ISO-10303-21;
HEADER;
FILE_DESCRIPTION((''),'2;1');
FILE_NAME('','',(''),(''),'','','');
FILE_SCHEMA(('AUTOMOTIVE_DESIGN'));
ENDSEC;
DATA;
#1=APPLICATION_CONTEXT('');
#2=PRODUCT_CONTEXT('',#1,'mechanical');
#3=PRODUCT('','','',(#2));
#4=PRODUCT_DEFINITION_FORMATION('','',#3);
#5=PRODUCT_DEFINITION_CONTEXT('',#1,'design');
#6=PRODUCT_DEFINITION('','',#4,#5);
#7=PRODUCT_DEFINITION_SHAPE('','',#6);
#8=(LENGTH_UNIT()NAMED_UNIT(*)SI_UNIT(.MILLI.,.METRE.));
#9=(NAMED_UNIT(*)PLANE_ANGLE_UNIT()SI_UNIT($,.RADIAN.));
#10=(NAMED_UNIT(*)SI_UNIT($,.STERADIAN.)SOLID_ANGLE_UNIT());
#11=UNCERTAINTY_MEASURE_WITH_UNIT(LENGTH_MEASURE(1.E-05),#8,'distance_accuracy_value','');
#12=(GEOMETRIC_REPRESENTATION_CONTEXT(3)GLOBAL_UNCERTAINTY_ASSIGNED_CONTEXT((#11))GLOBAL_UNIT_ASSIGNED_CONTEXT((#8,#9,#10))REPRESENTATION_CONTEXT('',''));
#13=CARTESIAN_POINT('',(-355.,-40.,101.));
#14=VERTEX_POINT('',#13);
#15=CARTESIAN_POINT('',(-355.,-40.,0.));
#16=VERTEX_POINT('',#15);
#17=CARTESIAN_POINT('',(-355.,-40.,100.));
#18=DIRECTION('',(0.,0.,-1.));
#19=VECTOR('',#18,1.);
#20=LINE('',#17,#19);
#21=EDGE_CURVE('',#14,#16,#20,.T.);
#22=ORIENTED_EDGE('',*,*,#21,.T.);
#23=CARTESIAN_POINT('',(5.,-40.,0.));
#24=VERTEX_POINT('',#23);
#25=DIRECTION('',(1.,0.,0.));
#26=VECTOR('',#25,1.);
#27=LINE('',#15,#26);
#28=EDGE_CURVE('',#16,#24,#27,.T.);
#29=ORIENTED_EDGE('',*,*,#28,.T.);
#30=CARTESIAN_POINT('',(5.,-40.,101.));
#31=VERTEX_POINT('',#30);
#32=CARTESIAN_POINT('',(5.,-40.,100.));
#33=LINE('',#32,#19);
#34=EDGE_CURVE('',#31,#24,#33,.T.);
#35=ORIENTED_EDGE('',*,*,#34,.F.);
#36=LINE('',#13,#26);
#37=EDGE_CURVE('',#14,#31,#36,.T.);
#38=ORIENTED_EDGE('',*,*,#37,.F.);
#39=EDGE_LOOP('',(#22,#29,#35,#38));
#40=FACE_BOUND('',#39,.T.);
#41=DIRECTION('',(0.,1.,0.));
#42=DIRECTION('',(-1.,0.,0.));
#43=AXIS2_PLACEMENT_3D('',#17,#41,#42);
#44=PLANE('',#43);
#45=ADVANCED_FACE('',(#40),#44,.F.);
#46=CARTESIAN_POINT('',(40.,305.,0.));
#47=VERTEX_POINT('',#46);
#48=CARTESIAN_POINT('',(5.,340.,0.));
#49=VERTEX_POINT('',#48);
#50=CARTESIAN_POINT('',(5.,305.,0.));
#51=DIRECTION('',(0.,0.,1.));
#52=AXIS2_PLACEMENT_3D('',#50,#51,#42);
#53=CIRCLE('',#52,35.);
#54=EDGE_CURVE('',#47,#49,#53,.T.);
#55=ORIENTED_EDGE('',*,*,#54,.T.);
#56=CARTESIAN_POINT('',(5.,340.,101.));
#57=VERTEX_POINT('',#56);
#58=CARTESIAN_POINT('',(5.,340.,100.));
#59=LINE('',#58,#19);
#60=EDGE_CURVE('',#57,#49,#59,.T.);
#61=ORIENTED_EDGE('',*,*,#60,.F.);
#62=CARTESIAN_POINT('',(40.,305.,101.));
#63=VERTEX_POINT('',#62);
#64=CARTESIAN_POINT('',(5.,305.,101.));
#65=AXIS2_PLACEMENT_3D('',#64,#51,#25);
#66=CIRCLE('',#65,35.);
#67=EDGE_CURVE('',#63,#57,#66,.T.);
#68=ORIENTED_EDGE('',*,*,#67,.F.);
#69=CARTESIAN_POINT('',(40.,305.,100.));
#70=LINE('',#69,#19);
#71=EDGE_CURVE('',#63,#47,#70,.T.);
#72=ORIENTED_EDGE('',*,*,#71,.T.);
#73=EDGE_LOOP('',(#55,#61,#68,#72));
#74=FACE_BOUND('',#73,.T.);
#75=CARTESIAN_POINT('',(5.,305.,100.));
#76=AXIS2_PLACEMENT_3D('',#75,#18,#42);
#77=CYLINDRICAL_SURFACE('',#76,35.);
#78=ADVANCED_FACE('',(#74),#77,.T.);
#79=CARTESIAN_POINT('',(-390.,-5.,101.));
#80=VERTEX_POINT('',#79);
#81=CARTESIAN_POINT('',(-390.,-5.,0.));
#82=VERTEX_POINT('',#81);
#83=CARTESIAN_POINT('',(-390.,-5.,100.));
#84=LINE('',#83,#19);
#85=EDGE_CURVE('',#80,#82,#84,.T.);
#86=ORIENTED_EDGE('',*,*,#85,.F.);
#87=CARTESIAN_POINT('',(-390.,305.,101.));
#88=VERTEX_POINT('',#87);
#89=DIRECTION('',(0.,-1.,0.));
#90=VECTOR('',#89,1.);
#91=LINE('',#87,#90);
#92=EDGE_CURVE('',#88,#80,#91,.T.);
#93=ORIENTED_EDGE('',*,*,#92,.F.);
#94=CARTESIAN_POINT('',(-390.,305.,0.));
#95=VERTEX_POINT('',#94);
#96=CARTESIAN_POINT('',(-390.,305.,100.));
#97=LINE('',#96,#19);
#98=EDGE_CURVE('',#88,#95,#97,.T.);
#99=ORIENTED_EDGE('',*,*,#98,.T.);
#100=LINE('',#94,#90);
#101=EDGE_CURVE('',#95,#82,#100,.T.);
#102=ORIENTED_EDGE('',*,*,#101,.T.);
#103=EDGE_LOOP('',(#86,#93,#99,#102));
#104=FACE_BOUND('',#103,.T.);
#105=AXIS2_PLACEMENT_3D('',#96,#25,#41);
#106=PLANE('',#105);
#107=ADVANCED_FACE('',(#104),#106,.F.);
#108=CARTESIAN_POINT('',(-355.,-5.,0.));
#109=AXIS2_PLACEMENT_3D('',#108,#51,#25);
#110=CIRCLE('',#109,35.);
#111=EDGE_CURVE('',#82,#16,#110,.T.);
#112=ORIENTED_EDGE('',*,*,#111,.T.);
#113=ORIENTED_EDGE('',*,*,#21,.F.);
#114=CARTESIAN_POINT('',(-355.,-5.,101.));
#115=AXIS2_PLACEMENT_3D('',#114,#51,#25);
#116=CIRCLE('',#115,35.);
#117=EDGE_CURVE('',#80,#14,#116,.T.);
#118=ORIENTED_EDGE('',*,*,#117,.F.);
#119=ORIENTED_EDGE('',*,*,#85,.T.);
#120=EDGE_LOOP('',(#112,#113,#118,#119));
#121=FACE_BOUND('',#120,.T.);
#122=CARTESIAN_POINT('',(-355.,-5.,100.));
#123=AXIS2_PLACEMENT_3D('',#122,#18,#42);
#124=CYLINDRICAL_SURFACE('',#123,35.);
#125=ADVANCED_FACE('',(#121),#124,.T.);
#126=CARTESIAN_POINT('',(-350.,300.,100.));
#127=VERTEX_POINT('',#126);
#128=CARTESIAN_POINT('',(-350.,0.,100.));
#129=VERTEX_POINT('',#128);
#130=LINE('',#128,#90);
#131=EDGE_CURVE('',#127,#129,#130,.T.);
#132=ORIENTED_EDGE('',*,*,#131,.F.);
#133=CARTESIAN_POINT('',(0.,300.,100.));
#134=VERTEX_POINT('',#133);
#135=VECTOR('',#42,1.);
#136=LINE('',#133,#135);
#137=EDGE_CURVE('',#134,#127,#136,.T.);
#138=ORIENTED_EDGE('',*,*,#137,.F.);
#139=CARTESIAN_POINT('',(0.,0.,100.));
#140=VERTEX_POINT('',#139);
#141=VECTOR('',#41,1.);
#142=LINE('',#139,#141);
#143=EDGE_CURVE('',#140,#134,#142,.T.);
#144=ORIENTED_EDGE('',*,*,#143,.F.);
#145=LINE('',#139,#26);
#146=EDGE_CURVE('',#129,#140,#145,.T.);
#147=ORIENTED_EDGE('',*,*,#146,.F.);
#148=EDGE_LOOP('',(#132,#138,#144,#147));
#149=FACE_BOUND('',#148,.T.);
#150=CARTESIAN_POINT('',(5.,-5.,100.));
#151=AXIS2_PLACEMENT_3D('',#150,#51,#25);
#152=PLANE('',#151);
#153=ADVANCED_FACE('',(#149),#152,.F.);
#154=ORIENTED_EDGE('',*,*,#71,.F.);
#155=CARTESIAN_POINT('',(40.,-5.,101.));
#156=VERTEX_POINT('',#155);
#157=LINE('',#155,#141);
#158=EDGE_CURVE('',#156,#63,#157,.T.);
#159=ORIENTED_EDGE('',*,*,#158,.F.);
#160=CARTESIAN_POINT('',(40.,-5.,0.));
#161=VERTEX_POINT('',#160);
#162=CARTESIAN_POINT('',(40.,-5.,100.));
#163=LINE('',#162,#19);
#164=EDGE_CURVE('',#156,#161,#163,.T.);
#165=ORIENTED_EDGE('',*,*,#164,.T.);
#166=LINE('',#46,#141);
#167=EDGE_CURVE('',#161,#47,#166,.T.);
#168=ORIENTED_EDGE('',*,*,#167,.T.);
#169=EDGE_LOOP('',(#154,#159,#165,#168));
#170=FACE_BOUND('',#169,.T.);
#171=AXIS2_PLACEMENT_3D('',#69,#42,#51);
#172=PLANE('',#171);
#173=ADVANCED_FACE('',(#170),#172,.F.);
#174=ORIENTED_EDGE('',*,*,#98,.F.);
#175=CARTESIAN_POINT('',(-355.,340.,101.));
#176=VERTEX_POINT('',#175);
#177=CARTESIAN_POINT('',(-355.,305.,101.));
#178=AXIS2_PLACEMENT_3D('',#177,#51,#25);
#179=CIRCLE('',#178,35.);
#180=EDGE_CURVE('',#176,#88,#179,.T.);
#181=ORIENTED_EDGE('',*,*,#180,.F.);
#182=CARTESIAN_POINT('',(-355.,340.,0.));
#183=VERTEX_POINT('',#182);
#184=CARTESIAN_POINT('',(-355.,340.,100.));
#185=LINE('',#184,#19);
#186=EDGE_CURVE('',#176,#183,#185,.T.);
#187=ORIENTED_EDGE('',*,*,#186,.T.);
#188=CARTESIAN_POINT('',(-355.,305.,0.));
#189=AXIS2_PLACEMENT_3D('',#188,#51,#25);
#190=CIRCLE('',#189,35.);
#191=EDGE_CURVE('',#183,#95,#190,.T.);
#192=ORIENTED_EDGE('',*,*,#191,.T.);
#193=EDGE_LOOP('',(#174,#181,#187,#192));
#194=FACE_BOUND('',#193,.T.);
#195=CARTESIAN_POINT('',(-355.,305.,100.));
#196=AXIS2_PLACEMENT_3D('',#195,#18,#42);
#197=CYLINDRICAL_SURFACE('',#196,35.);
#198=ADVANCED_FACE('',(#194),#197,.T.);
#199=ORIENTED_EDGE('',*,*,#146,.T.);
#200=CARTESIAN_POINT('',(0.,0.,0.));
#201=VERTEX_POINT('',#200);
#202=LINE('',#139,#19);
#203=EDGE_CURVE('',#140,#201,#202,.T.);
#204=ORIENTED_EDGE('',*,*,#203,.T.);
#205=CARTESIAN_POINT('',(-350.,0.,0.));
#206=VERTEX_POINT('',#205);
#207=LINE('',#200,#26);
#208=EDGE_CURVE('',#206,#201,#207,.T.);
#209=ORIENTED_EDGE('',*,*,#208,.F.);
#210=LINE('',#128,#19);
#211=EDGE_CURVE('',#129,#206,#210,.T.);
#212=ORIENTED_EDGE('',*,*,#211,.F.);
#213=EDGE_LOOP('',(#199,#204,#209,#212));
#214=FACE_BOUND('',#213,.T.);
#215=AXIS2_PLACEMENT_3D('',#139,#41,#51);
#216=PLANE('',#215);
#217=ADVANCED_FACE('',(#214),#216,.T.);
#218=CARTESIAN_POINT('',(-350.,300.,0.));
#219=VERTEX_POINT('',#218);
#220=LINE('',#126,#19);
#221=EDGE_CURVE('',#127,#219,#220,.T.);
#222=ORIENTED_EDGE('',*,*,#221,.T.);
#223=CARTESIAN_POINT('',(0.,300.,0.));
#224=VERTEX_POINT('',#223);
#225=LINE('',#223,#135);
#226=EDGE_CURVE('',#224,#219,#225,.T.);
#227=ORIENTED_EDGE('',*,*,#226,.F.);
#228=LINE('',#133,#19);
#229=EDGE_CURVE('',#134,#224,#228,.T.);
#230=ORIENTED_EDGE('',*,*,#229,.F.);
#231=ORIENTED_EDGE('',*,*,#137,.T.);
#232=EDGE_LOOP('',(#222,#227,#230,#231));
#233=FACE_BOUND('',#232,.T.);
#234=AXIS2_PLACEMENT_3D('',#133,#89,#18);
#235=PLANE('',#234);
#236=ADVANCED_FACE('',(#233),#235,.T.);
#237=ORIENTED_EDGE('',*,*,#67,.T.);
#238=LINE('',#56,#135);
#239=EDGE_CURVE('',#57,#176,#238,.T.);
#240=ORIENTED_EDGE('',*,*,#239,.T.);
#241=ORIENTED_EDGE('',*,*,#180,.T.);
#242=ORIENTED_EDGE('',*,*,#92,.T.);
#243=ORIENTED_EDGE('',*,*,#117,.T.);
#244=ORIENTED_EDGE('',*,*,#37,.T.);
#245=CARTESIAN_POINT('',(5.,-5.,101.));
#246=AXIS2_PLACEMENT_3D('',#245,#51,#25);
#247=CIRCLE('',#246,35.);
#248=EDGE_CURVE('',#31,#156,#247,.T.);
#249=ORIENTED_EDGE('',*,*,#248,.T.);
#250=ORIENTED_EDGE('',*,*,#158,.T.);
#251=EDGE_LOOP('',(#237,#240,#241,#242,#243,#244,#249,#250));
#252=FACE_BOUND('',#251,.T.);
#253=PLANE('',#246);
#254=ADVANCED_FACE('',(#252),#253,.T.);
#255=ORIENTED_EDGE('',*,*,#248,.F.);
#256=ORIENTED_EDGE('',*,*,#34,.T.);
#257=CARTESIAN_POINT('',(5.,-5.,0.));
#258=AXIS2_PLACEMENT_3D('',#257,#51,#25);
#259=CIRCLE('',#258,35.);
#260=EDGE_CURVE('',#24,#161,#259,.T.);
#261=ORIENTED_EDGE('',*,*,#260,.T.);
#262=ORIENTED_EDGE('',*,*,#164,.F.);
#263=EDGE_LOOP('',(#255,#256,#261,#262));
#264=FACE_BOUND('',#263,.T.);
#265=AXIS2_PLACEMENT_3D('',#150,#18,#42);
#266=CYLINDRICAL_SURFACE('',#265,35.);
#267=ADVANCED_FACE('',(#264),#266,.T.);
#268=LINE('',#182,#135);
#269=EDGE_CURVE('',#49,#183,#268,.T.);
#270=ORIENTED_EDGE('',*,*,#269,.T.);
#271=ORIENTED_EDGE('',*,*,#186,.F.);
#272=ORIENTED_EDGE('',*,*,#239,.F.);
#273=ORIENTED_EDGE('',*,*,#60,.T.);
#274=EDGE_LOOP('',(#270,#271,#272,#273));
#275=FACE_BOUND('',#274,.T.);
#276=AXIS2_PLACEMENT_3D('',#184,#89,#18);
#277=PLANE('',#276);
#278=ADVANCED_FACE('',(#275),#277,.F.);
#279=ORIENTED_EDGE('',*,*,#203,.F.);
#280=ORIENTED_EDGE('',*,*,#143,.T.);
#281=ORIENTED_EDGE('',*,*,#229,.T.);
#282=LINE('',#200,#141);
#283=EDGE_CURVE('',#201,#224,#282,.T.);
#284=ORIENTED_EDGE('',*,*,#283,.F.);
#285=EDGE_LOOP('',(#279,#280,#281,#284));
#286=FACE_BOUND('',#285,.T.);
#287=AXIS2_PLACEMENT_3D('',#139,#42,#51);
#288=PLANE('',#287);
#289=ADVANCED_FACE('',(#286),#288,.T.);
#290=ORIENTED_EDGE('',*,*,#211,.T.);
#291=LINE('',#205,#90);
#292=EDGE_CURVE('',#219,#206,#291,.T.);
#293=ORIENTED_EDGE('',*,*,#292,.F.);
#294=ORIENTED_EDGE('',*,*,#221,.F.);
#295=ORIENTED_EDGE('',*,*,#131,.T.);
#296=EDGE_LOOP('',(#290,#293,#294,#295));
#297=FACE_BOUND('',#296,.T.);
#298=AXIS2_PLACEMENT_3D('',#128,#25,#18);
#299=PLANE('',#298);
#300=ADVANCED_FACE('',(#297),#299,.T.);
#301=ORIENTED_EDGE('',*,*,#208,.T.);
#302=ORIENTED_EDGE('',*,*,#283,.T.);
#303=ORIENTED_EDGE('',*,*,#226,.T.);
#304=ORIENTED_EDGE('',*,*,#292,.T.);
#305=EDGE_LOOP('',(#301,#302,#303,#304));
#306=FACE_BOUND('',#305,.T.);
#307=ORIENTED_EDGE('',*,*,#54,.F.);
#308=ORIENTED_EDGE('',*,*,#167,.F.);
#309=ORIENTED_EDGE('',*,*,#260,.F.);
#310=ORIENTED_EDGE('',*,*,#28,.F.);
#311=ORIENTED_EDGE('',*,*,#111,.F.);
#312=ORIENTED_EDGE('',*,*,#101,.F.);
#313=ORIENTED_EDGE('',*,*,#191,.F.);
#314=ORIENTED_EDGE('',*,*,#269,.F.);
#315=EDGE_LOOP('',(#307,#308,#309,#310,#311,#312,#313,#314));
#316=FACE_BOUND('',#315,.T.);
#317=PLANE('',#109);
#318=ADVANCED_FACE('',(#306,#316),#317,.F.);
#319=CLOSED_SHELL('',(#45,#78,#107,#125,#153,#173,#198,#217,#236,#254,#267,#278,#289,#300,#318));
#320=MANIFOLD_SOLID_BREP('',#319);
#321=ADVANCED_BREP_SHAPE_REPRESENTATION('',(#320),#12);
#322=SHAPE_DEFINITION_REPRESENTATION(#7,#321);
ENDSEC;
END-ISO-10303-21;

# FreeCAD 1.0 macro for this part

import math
import FreeCAD as App
import Part
import Sketcher

V = App.Vector
Q = App.Units.Quantity


def add_polygon(sketch, points):
    """Adds a closed chain of lines whose ends are joined by coincident constraints."""
    first, n = sketch.GeometryCount, len(points)
    for a, b in zip(points, points[1:] + points[:1]):
        sketch.addGeometry(Part.LineSegment(App.Vector(*a, 0), App.Vector(*b, 0)), False)
    for i in range(n):
        sketch.addConstraint(Sketcher.Constraint("Coincident", first + i, 2, first + (i + 1) % n, 1))

doc = App.newDocument("Part")
params = doc.addObject("Spreadsheet::Sheet", "Params")
for row, (alias, value) in enumerate([
    ("sketch1_radius", "35 mm"),
    ("sketch1_width", "360 mm"),
    ("sketch1_width2", "350 mm"),
    ("sketch1_height", "310 mm"),
    ("sketch1_height2", "300 mm"),
    ("pad1_length", "100 mm"),
    ("sketch2_radius", "35 mm"),
    ("sketch2_width", "360 mm"),
    ("sketch2_height", "310 mm"),
    ("pad2_length", "1 mm"),
], start=1):
    params.set(f"A{row}", alias)
    params.set(f"B{row}", "=" + value)
    params.setAlias(f"B{row}", alias)

body = doc.addObject("PartDesign::Body", "Body")

sketch1 = body.newObject("Sketcher::SketchObject", "Sketch")
sketch1.AttachmentSupport = (doc.getObject("XY_Plane"), [""])
sketch1.MapMode = "FlatFace"
sketch1.addGeometry(Part.LineSegment(V(5, 340, 0), V(-355, 340, 0)), False)
sketch1.addGeometry(Part.ArcOfCircle(Part.Circle(V(-355, 305, 0), V(0, 0, 1), 35), math.radians(90), math.radians(180)), False)
sketch1.addGeometry(Part.LineSegment(V(-390, 305, 0), V(-390, -5, 0)), False)
sketch1.addGeometry(Part.ArcOfCircle(Part.Circle(V(-355, -5, 0), V(0, 0, 1), 35), math.radians(180), math.radians(270)), False)
sketch1.addGeometry(Part.LineSegment(V(-355, -40, 0), V(5, -40, 0)), False)
sketch1.addGeometry(Part.ArcOfCircle(Part.Circle(V(5, -5, 0), V(0, 0, 1), 35), math.radians(-90), math.radians(0)), False)
sketch1.addGeometry(Part.LineSegment(V(40, -5, 0), V(40, 305, 0)), False)
sketch1.addGeometry(Part.ArcOfCircle(Part.Circle(V(5, 305, 0), V(0, 0, 1), 35), math.radians(0), math.radians(90)), False)
add_polygon(sketch1, [(-350, 0), (-350, 300), (0, 300), (0, 0)])
sketch1.addConstraint([
    Sketcher.Constraint("Tangent", 0, 2, 1, 1),
    Sketcher.Constraint("Tangent", 1, 2, 2, 1),
    Sketcher.Constraint("Tangent", 2, 2, 3, 1),
    Sketcher.Constraint("Tangent", 3, 2, 4, 1),
    Sketcher.Constraint("Tangent", 4, 2, 5, 1),
    Sketcher.Constraint("Tangent", 5, 2, 6, 1),
    Sketcher.Constraint("Tangent", 6, 2, 7, 1),
    Sketcher.Constraint("Tangent", 7, 2, 0, 1),
    Sketcher.Constraint("Horizontal", 0),
    Sketcher.Constraint("Vertical", 2),
    Sketcher.Constraint("Horizontal", 4),
    Sketcher.Constraint("Vertical", 6),
    Sketcher.Constraint("Vertical", 8),
    Sketcher.Constraint("Horizontal", 9),
    Sketcher.Constraint("Vertical", 10),
    Sketcher.Constraint("Horizontal", 11),
    Sketcher.Constraint("Coincident", 10, 2, -1, 1),
    Sketcher.Constraint("Equal", 1, 3),
    Sketcher.Constraint("Equal", 3, 5),
    Sketcher.Constraint("Equal", 5, 7),
    Sketcher.Constraint("Radius", 1, Q("35 mm")),
    Sketcher.Constraint("DistanceX", 0, 2, 0, 1, Q("360 mm")),
    Sketcher.Constraint("DistanceX", 9, 1, 9, 2, Q("350 mm")),
    Sketcher.Constraint("DistanceY", 2, 2, 2, 1, Q("310 mm")),
    Sketcher.Constraint("DistanceY", 8, 1, 8, 2, Q("300 mm")),
    Sketcher.Constraint("DistanceX", 1, 3, -1, 1, Q("355 mm")),
    Sketcher.Constraint("DistanceY", -1, 1, 1, 3, Q("305 mm")),
])
sketch1.setExpression("Constraints[24]", "Params.sketch1_radius")
sketch1.setExpression("Constraints[25]", "Params.sketch1_width")
sketch1.setExpression("Constraints[26]", "Params.sketch1_width2")
sketch1.setExpression("Constraints[27]", "Params.sketch1_height")
sketch1.setExpression("Constraints[28]", "Params.sketch1_height2")
pad1 = body.newObject("PartDesign::Pad", "Pad")
pad1.Profile = sketch1
pad1.setExpression("Length", "Params.pad1_length")

sketch2 = body.newObject("Sketcher::SketchObject", "Sketch001")
sketch2.AttachmentSupport = (doc.getObject("XY_Plane"), [""])
sketch2.MapMode = "FlatFace"
sketch2.AttachmentOffset = App.Placement(V(0, 0, 100), App.Rotation())
sketch2.addGeometry([
    Part.LineSegment(V(-355, -40, 0), V(5, -40, 0)),
    Part.ArcOfCircle(Part.Circle(V(5, -5, 0), V(0, 0, 1), 35), math.radians(-90), math.radians(0)),
    Part.LineSegment(V(40, -5, 0), V(40, 305, 0)),
    Part.ArcOfCircle(Part.Circle(V(5, 305, 0), V(0, 0, 1), 35), math.radians(0), math.radians(90)),
    Part.LineSegment(V(5, 340, 0), V(-355, 340, 0)),
    Part.ArcOfCircle(Part.Circle(V(-355, 305, 0), V(0, 0, 1), 35), math.radians(90), math.radians(180)),
    Part.LineSegment(V(-390, 305, 0), V(-390, -5, 0)),
    Part.ArcOfCircle(Part.Circle(V(-355, -5, 0), V(0, 0, 1), 35), math.radians(180), math.radians(270)),
], False)
sketch2.addConstraint([
    Sketcher.Constraint("Tangent", 0, 2, 1, 1),
    Sketcher.Constraint("Tangent", 1, 2, 2, 1),
    Sketcher.Constraint("Tangent", 2, 2, 3, 1),
    Sketcher.Constraint("Tangent", 3, 2, 4, 1),
    Sketcher.Constraint("Tangent", 4, 2, 5, 1),
    Sketcher.Constraint("Tangent", 5, 2, 6, 1),
    Sketcher.Constraint("Tangent", 6, 2, 7, 1),
    Sketcher.Constraint("Tangent", 7, 2, 0, 1),
    Sketcher.Constraint("Horizontal", 0),
    Sketcher.Constraint("Vertical", 2),
    Sketcher.Constraint("Horizontal", 4),
    Sketcher.Constraint("Vertical", 6),
    Sketcher.Constraint("Equal", 1, 3),
    Sketcher.Constraint("Equal", 3, 5),
    Sketcher.Constraint("Equal", 5, 7),
    Sketcher.Constraint("Radius", 1, Q("35 mm")),
    Sketcher.Constraint("DistanceX", 0, 1, 0, 2, Q("360 mm")),
    Sketcher.Constraint("DistanceY", 2, 1, 2, 2, Q("310 mm")),
    Sketcher.Constraint("DistanceX", -1, 1, 1, 3, Q("5 mm")),
    Sketcher.Constraint("DistanceY", 1, 3, -1, 1, Q("5 mm")),
])
sketch2.setExpression("Constraints[15]", "Params.sketch2_radius")
sketch2.setExpression("Constraints[16]", "Params.sketch2_width")
sketch2.setExpression("Constraints[17]", "Params.sketch2_height")
pad2 = body.newObject("PartDesign::Pad", "Pad001")
pad2.Profile = sketch2
pad2.setExpression("Length", "Params.pad2_length")

doc.recompute()
